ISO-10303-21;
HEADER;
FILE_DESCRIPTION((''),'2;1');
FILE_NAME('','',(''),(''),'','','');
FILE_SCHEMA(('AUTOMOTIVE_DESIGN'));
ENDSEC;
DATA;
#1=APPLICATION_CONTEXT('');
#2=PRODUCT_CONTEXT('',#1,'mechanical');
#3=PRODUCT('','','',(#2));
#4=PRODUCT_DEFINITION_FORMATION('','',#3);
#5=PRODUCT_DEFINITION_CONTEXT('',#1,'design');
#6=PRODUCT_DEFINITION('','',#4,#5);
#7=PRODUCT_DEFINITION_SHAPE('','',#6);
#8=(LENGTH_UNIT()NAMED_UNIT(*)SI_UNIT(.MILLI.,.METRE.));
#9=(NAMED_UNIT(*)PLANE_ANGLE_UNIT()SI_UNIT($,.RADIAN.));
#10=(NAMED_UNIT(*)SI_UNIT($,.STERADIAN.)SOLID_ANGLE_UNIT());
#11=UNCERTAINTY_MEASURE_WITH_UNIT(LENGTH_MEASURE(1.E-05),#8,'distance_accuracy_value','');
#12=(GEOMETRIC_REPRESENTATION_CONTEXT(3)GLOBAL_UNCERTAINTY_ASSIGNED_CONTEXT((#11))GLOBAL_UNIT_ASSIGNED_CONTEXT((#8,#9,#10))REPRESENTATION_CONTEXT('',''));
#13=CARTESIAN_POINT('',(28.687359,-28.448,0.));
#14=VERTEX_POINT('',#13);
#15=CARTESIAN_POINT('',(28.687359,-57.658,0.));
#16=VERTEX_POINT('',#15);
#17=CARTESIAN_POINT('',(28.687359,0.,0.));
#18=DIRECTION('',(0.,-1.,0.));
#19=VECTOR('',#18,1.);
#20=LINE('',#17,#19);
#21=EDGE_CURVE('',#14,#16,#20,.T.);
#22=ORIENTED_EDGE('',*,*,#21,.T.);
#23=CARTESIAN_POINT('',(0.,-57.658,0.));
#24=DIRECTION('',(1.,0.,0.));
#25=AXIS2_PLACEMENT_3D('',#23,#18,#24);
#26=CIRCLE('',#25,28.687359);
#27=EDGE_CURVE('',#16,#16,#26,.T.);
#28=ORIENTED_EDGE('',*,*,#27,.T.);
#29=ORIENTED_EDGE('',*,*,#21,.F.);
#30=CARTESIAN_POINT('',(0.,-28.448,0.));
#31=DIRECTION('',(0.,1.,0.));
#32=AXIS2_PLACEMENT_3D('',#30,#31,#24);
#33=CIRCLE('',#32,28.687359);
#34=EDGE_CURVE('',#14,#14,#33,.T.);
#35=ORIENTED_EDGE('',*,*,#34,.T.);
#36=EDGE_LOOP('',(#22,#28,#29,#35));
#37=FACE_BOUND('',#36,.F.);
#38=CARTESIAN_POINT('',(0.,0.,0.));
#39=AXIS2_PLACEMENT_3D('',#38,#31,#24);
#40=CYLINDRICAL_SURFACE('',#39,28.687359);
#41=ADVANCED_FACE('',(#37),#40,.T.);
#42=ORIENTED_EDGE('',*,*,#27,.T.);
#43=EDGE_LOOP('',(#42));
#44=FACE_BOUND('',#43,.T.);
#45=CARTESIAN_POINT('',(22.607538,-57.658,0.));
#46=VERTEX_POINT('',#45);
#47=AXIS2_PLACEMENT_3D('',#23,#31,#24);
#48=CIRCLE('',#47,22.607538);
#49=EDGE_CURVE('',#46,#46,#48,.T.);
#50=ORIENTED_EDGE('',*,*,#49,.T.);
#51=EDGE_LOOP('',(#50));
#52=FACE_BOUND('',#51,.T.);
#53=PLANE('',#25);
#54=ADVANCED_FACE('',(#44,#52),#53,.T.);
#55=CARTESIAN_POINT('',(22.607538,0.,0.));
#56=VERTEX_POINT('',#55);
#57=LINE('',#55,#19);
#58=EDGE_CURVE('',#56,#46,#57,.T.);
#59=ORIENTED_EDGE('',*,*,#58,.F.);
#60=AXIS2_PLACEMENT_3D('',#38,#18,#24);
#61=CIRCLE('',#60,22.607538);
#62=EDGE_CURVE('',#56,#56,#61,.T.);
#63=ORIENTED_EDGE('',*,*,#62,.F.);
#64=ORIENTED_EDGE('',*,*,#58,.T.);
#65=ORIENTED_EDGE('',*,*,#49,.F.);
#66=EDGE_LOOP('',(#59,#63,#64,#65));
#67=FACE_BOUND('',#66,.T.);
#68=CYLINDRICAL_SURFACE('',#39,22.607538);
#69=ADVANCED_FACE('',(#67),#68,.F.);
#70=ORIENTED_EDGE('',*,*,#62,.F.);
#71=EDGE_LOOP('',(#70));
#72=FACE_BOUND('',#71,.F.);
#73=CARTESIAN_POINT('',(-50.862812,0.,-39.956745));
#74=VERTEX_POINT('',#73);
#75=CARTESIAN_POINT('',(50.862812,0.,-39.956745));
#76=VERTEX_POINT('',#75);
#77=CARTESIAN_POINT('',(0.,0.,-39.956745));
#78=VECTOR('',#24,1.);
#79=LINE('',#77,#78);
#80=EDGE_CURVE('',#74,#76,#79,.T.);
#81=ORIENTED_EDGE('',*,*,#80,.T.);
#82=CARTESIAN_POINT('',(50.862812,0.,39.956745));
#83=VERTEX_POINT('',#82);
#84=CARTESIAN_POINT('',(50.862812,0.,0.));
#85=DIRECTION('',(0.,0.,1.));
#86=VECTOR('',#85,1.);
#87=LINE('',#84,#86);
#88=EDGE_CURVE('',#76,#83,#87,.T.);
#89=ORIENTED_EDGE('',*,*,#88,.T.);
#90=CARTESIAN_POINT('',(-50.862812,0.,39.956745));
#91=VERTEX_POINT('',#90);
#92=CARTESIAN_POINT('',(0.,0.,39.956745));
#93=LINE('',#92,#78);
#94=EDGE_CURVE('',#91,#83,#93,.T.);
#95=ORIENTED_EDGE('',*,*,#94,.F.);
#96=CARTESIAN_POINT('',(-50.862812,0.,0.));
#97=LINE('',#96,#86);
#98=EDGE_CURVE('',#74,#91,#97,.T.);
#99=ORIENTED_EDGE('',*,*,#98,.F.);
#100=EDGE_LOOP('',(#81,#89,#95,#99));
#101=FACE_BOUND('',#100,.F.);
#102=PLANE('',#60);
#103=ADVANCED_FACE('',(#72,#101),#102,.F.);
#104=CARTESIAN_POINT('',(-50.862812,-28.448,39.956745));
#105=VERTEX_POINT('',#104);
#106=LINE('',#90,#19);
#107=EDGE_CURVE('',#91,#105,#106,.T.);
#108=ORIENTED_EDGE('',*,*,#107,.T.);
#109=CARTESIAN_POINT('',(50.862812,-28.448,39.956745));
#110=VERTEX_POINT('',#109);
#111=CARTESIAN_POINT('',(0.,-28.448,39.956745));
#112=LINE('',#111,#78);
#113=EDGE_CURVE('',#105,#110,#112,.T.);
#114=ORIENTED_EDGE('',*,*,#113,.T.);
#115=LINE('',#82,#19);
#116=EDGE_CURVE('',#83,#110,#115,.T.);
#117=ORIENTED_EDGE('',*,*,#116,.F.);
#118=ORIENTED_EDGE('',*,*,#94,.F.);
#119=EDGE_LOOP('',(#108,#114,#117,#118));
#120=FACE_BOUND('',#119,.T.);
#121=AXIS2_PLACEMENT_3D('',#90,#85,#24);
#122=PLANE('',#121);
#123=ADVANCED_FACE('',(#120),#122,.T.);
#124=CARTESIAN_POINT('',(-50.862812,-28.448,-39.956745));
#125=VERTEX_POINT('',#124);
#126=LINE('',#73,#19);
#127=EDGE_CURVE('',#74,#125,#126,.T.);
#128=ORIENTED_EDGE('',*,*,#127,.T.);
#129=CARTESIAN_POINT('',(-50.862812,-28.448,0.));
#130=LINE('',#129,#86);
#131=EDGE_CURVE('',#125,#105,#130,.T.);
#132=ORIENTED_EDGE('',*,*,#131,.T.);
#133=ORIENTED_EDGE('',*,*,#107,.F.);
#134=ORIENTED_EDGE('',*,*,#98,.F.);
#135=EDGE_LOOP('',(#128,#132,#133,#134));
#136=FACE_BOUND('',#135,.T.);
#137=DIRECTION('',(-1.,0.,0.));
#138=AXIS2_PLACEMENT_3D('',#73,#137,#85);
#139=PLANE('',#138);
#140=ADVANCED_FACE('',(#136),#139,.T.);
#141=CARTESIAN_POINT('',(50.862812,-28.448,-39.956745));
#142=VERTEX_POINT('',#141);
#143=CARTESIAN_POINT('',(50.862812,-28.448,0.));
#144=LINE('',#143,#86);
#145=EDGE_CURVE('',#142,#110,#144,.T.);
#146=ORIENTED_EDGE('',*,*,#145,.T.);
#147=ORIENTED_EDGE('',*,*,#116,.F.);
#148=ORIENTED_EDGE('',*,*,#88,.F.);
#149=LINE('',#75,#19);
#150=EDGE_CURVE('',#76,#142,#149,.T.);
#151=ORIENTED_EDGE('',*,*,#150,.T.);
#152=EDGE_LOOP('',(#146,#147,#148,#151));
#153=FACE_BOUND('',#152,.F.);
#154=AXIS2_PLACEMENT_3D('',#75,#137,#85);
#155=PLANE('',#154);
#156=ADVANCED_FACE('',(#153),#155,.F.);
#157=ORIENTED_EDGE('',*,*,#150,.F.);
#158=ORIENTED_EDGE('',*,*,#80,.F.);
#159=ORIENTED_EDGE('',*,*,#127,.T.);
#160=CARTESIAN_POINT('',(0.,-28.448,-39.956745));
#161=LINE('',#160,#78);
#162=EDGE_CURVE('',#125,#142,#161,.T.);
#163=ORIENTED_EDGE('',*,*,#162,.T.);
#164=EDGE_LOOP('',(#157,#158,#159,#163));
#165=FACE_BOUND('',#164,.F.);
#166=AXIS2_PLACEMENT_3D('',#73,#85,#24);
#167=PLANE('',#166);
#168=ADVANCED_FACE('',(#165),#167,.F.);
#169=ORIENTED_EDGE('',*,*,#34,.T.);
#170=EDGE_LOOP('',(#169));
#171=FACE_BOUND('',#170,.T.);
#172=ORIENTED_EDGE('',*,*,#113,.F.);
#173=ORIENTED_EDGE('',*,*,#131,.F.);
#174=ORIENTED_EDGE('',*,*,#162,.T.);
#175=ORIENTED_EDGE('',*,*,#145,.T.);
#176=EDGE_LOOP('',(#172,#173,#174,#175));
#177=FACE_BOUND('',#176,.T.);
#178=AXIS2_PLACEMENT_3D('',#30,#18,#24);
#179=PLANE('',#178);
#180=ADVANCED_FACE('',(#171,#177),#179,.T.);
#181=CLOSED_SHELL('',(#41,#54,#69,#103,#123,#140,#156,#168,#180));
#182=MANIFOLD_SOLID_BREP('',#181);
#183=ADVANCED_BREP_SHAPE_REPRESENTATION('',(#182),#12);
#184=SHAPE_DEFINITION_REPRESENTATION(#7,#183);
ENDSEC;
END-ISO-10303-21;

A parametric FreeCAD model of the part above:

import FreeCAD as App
import Part
import Sketcher
Q = App.Units.Quantity

doc = App.newDocument("Part")
body = doc.addObject("PartDesign::Body", "Body")

# Sketch on XZ plane
sketch1 = doc.addObject("Sketcher::SketchObject", "Sketch")
body.addObject(sketch1)
sketch1.AttachmentSupport = (doc.XZ_Plane, [""])
sketch1.MapMode = "FlatFace"
sketch1.addGeometry(Part.LineSegment(App.Vector(-50.862812, 39.956745, 0), App.Vector(-50.862812, -39.956745, 0)), False)
sketch1.addGeometry(Part.LineSegment(App.Vector(-50.862812, -39.956745, 0), App.Vector(50.862812, -39.956745, 0)), False)
sketch1.addGeometry(Part.LineSegment(App.Vector(50.862812, -39.956745, 0), App.Vector(50.862812, 39.956745, 0)), False)
sketch1.addGeometry(Part.LineSegment(App.Vector(50.862812, 39.956745, 0), App.Vector(-50.862812, 39.956745, 0)), False)
sketch1.addConstraint(Sketcher.Constraint("Coincident", 0, 2, 1, 1))
sketch1.addConstraint(Sketcher.Constraint("Coincident", 1, 2, 2, 1))
sketch1.addConstraint(Sketcher.Constraint("Coincident", 2, 2, 3, 1))
sketch1.addConstraint(Sketcher.Constraint("Coincident", 3, 2, 0, 1))
sketch1.addConstraint(Sketcher.Constraint("Vertical", 0))
sketch1.addConstraint(Sketcher.Constraint("Horizontal", 1))
sketch1.addConstraint(Sketcher.Constraint("Vertical", 2))
sketch1.addConstraint(Sketcher.Constraint("Horizontal", 3))
sketch1.addConstraint(Sketcher.Constraint("Symmetric", 0, 2, 2, 2, -1, 1))
sketch1.addConstraint(Sketcher.Constraint("DistanceY", 0, 2, -1, 1, Q("1.5731002 in")))
sketch1.addConstraint(Sketcher.Constraint("DistanceX", 1, 1, 1, 2, Q("101.725624 mm")))
pad1 = doc.addObject("PartDesign::Pad", "Pad")
body.addObject(pad1)
pad1.Profile = sketch1
pad1.Length = Q("1.12 in")

# Sketch on XZ plane
sketch2 = doc.addObject("Sketcher::SketchObject", "Sketch001")
body.addObject(sketch2)
sketch2.AttachmentSupport = (doc.XZ_Plane, [""])
sketch2.MapMode = "FlatFace"
sketch2.addGeometry(Part.Circle(App.Vector(0, 0, 0), App.Vector(0, 0, 1), 28.687359), False)
sketch2.addConstraint(Sketcher.Constraint("Coincident", 0, 3, -1, 1))
sketch2.addConstraint(Sketcher.Constraint("Diameter", 0, Q("57.374718 mm")))
pad2 = doc.addObject("PartDesign::Pad", "Pad001")
body.addObject(pad2)
pad2.Profile = sketch2
pad2.Length = Q("2.27 in")

# Sketch on XZ plane
sketch3 = doc.addObject("Sketcher::SketchObject", "Sketch002")
body.addObject(sketch3)
sketch3.AttachmentSupport = (doc.XZ_Plane, [""])
sketch3.MapMode = "FlatFace"
sketch3.addGeometry(Part.Circle(App.Vector(0, 0, 0), App.Vector(0, 0, 1), 22.607538), False)
sketch3.addConstraint(Sketcher.Constraint("Coincident", 0, 3, -1, 1))
sketch3.addConstraint(Sketcher.Constraint("Diameter", 0, Q("45.215076 mm")))
pocket1 = doc.addObject("PartDesign::Pocket", "Pocket")
body.addObject(pocket1)
pocket1.Profile = sketch3
pocket1.Length = Q("2.79 in")
pocket1.Reversed = True

doc.recompute()
